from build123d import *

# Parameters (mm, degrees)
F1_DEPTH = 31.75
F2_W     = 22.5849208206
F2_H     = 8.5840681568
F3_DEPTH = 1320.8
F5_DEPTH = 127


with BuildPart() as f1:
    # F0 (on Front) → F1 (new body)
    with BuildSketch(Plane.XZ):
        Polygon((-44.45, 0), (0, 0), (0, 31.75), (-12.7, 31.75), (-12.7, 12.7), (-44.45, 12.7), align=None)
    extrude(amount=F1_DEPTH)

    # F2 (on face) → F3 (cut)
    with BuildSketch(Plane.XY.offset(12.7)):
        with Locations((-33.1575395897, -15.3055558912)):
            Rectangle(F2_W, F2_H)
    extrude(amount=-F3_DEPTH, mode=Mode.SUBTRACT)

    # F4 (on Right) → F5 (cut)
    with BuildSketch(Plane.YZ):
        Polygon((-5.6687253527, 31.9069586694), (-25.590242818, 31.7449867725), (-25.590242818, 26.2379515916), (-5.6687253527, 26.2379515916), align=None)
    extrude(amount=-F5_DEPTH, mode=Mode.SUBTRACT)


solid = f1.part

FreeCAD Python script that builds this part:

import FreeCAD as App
import Part
import Sketcher
from FreeCAD import Vector
Q = App.Units.Quantity


def add_polygon(sketch, points):
    """Adds a closed chain of lines whose ends are joined by coincident constraints."""
    first, n = sketch.GeometryCount, len(points)
    for a, b in zip(points, points[1:] + points[:1]):
        sketch.addGeometry(Part.LineSegment(App.Vector(*a, 0), App.Vector(*b, 0)), False)
    for i in range(n):
        sketch.addConstraint(Sketcher.Constraint("Coincident", first + i, 2, first + (i + 1) % n, 1))

doc = App.newDocument("Part")
body = doc.addObject("PartDesign::Body", "Body")

# Sketch on XZ plane
sketch1 = body.newObject("Sketcher::SketchObject", "Sketch")
sketch1.AttachmentSupport = (doc.getObject("XZ_Plane"), [""])
sketch1.MapMode = "FlatFace"
add_polygon(sketch1, [(-44, 0), (0, 0), (0, 32), (-13, 32), (-13, 13), (-44, 13)])  # lines 0-5
sketch1.addConstraint(Sketcher.Constraint("Horizontal", 0))
sketch1.addConstraint(Sketcher.Constraint("Vertical", 1))
sketch1.addConstraint(Sketcher.Constraint("Horizontal", 2))
sketch1.addConstraint(Sketcher.Constraint("Vertical", 3))
sketch1.addConstraint(Sketcher.Constraint("Horizontal", 4))
sketch1.addConstraint(Sketcher.Constraint("Vertical", 5))
sketch1.addConstraint(Sketcher.Constraint("Coincident", 0, 2, -1, 1))
sketch1.addConstraint(Sketcher.Constraint("Equal", 4, 1))
sketch1.addConstraint(Sketcher.Constraint("Equal", 2, 5))
sketch1.addConstraint(Sketcher.Constraint("DistanceX", 2, 2, 2, 1, Q("0.5 in")))
sketch1.addConstraint(Sketcher.Constraint("DistanceX", 0, 1, 0, 2, Q("1.75 in")))
pad1 = body.newObject("PartDesign::Pad", "Pad")
pad1.Profile = sketch1
pad1.Length = Q("1.25 in")

# Sketch on XY plane
sketch2 = body.newObject("Sketcher::SketchObject", "Sketch001")
sketch2.AttachmentSupport = (doc.getObject("XY_Plane"), [""])
sketch2.MapMode = "FlatFace"
sketch2.AttachmentOffset = App.Placement(Vector(0, 0, 0.5 * 25.4), App.Rotation())
add_polygon(sketch2, [(-44, -11), (-44, -20), (-22, -20), (-22, -11)])  # lines 0-3
sketch2.addConstraint(Sketcher.Constraint("Vertical", 0))
sketch2.addConstraint(Sketcher.Constraint("Horizontal", 1))
sketch2.addConstraint(Sketcher.Constraint("Vertical", 2))
sketch2.addConstraint(Sketcher.Constraint("Horizontal", 3))
sketch2.addConstraint(Sketcher.Constraint("DistanceX", 0, 2, -1, 1, Q("1.75 in")))
sketch2.addConstraint(Sketcher.Constraint("DistanceX", 1, 1, 1, 2, 22.584921))
sketch2.addConstraint(Sketcher.Constraint("DistanceY", 0, 2, 0, 1, 8.584068))
sketch2.addConstraint(Sketcher.Constraint("DistanceY", 0, 2, -1, 1, 19.59759))
pocket1 = body.newObject("PartDesign::Pocket", "Pocket")
pocket1.Profile = sketch2
pocket1.Length = Q("52 in")

# Sketch on YZ plane
sketch3 = body.newObject("Sketcher::SketchObject", "Sketch002")
sketch3.AttachmentSupport = (doc.getObject("YZ_Plane"), [""])
sketch3.MapMode = "FlatFace"
add_polygon(sketch3, [(-6, 32), (-26, 32), (-26, 26), (-6, 26)])  # lines 0-3
sketch3.addConstraint(Sketcher.Constraint("Vertical", 1))
sketch3.addConstraint(Sketcher.Constraint("Horizontal", 2))
sketch3.addConstraint(Sketcher.Constraint("Vertical", 3))
sketch3.addConstraint(Sketcher.Constraint("DistanceX", 2, 1, 2, 2, 19.921517))
sketch3.addConstraint(Sketcher.Constraint("DistanceY", 1, 2, 1, 1, 5.507035))
sketch3.addConstraint(Sketcher.Constraint("DistanceY", 3, 1, 3, 2, 5.669007))
sketch3.addConstraint(Sketcher.Constraint("DistanceY", -1, 1, 1, 2, 26.237952))
sketch3.addConstraint(Sketcher.Constraint("DistanceX", 0, 2, -1, 1, 25.590243))
pocket2 = body.newObject("PartDesign::Pocket", "Pocket001")
pocket2.Profile = sketch3
pocket2.Length = Q("5 in")

doc.recompute()
